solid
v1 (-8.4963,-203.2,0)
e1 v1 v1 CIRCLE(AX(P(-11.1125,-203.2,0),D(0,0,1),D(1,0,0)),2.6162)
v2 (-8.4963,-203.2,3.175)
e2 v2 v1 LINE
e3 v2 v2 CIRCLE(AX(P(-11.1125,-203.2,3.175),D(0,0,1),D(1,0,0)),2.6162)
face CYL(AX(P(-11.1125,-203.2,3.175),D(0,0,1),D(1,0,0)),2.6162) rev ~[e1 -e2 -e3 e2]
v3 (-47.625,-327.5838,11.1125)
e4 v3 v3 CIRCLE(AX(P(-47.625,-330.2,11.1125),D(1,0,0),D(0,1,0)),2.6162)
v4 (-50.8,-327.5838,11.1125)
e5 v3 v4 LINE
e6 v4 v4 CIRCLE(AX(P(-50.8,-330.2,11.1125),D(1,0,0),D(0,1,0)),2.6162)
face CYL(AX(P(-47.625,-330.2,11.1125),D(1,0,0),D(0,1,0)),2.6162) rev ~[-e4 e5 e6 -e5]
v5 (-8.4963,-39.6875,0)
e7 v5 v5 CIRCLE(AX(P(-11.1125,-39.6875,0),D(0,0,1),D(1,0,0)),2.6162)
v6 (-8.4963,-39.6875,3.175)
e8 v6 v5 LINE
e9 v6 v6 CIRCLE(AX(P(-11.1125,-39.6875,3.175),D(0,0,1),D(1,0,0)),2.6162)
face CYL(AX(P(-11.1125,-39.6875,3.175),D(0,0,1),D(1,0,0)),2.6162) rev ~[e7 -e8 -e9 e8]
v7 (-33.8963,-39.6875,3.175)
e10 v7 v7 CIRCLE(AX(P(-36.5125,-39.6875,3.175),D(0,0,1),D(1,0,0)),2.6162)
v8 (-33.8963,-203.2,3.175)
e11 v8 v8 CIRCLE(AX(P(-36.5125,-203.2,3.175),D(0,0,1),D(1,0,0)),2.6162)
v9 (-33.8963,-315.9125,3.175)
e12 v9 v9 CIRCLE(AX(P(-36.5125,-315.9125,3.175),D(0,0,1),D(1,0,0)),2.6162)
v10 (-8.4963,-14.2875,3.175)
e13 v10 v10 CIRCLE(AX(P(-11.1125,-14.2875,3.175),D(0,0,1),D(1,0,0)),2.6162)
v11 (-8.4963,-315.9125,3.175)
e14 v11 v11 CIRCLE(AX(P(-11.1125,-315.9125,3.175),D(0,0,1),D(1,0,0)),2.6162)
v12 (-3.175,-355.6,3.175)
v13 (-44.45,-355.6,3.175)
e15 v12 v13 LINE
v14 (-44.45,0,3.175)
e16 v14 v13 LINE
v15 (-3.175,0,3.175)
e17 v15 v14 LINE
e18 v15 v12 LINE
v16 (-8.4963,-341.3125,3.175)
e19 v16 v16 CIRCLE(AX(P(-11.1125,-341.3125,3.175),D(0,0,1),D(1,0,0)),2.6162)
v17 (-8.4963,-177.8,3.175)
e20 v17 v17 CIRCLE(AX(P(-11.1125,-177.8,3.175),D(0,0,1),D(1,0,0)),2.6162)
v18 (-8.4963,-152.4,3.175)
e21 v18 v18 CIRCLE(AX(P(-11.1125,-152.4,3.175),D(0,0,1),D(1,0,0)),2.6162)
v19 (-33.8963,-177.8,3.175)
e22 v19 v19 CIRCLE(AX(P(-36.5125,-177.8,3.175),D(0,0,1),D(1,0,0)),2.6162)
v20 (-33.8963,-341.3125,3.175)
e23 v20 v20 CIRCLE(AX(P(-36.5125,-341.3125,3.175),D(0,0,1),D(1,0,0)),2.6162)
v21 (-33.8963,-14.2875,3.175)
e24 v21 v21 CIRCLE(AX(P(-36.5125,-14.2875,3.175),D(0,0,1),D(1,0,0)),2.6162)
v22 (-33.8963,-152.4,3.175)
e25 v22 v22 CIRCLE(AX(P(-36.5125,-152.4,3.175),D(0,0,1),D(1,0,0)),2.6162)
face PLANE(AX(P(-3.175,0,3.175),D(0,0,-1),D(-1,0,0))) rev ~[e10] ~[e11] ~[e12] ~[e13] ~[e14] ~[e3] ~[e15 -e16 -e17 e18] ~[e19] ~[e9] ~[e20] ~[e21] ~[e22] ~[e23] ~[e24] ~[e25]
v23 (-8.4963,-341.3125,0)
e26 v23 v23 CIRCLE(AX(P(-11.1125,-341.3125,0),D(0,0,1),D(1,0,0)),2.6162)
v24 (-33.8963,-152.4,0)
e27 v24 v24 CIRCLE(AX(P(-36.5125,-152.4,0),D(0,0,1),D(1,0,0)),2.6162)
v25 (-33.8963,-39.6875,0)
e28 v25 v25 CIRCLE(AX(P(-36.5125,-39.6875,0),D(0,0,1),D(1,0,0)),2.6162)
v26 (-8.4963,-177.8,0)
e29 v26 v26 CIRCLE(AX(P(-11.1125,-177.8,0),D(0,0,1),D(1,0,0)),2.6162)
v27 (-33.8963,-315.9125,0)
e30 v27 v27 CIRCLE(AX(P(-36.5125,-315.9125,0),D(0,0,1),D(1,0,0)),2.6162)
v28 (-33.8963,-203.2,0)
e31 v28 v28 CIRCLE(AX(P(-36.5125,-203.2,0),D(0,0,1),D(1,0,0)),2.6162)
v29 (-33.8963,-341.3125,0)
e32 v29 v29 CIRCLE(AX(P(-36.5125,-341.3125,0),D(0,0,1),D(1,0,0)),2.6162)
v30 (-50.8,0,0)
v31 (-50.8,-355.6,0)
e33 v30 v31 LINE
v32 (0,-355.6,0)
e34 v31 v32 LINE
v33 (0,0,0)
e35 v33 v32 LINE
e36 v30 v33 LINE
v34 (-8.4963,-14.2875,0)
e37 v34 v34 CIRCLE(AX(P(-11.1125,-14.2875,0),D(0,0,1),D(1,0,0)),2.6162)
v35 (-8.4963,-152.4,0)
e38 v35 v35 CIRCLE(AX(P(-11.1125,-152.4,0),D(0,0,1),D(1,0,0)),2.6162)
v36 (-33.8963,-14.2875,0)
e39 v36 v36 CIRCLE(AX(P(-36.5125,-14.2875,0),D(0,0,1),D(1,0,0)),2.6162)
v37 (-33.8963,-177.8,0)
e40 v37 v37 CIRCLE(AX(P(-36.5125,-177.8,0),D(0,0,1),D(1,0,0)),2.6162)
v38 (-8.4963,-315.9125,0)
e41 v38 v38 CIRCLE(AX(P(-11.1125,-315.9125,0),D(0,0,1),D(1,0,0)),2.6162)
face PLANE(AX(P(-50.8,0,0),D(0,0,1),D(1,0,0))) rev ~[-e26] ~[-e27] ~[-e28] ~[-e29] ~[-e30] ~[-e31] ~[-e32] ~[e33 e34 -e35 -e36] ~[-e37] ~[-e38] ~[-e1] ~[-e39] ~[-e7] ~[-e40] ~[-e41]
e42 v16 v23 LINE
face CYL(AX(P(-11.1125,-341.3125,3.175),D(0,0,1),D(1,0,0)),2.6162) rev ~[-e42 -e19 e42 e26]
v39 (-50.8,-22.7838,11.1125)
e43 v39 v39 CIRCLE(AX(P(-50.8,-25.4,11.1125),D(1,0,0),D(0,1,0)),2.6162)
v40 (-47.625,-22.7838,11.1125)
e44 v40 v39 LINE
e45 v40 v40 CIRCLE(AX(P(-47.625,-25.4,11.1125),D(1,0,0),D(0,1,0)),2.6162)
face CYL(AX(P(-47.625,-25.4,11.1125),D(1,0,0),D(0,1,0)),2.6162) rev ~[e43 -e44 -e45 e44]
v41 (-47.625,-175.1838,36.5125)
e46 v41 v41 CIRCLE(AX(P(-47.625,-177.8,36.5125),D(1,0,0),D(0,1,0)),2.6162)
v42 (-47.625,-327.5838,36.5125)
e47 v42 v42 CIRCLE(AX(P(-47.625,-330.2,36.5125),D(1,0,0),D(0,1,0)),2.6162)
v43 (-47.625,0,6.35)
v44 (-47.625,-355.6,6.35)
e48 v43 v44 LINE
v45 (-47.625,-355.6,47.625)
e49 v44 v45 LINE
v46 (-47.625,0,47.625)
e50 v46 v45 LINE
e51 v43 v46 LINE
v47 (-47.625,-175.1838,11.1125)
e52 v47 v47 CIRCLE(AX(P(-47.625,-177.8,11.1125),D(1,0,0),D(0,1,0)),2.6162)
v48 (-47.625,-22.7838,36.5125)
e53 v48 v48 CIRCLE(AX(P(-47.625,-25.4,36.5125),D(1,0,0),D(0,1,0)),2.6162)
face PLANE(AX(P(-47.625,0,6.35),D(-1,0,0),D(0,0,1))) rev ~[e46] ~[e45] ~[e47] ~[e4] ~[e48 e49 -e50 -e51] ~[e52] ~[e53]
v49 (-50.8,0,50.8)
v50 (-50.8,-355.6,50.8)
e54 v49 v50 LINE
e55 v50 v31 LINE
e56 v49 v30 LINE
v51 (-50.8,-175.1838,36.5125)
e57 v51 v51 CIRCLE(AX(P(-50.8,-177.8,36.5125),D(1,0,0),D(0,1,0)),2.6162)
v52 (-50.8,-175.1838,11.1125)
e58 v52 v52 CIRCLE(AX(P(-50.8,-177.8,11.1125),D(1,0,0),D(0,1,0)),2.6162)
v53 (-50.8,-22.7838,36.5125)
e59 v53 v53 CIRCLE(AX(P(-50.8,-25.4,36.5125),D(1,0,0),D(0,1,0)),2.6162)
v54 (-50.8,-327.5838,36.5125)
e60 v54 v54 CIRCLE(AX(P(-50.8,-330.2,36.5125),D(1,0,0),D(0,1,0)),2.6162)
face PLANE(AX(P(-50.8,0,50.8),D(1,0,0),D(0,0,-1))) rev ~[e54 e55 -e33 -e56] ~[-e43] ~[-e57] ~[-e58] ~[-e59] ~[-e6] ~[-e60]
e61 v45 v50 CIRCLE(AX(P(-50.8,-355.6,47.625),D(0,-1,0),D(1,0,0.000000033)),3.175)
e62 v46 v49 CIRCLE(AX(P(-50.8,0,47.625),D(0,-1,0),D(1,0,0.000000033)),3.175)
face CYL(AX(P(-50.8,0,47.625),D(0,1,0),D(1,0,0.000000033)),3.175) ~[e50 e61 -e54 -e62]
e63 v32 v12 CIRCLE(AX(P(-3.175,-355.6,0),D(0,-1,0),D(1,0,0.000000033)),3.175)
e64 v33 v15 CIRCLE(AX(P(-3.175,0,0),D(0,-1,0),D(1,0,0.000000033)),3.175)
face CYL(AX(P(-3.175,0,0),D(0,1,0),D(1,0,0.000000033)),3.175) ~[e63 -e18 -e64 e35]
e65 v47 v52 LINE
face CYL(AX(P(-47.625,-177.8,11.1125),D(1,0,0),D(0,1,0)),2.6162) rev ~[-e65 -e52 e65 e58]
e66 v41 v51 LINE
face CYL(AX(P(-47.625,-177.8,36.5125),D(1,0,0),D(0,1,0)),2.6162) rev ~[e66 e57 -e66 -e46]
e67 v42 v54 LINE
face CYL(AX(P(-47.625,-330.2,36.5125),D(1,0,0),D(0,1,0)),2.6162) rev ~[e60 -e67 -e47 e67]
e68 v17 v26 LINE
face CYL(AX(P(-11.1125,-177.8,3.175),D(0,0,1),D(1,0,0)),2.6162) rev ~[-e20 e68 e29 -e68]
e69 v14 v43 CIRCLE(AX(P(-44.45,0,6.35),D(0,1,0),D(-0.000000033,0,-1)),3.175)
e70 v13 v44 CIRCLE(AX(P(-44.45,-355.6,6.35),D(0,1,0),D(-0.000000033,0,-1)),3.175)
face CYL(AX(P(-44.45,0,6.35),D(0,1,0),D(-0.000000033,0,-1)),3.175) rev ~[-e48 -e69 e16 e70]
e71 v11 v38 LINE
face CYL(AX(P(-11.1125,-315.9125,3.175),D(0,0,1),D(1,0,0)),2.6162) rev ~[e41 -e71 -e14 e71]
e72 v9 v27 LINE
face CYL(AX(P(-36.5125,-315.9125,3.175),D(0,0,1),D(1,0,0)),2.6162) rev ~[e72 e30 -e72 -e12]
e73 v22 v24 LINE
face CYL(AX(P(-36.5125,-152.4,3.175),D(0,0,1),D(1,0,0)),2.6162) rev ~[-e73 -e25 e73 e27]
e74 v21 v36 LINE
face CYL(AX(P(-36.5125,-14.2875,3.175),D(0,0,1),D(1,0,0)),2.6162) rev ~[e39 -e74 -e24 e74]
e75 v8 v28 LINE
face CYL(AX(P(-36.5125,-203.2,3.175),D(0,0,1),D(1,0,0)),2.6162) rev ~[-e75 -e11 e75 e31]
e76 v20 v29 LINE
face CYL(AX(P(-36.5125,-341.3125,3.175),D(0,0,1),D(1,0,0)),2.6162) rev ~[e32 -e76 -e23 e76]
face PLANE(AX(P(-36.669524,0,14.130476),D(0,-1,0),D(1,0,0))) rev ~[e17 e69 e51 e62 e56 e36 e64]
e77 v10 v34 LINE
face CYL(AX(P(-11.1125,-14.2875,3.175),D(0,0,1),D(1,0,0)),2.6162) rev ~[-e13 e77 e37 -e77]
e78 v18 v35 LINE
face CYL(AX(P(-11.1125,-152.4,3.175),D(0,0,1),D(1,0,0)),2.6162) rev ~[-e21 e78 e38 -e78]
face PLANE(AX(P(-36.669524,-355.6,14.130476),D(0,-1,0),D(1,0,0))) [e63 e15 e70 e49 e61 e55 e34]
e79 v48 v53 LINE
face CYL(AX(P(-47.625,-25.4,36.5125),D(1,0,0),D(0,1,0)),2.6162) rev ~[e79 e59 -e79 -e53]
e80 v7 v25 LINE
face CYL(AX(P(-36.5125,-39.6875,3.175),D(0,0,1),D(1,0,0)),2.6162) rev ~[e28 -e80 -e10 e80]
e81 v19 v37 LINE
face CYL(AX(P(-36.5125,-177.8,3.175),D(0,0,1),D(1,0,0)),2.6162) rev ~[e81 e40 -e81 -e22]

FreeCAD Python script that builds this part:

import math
import FreeCAD as App
import Part
import Sketcher
from FreeCAD import Vector
Q = App.Units.Quantity

doc = App.newDocument("Part")
body = doc.addObject("PartDesign::Body", "Body")

# Sketch on XZ plane
sketch1 = doc.addObject("Sketcher::SketchObject", "Sketch")
body.addObject(sketch1)
sketch1.AttachmentSupport = (doc.XZ_Plane, [""])
sketch1.MapMode = "FlatFace"
sketch1.addGeometry([
    Part.LineSegment(Vector(-50.8, 0, 0), Vector(0, 0, 0)),  # 0
    Part.ArcOfCircle(Part.Circle(Vector(-3.175, 0, 0), Vector(0, 0, 1), 3.175), math.radians(0.000002), math.radians(89.999998)),  # 1
    Part.LineSegment(Vector(-3.175, 3.175, 0), Vector(-44.45, 3.175, 0)),  # 2
    Part.ArcOfCircle(Part.Circle(Vector(-44.45, 6.35, 0), Vector(0, 0, 1), 3.175), math.radians(-179.999998), math.radians(-90.000002)),  # 3
    Part.LineSegment(Vector(-47.625, 6.35, 0), Vector(-47.625, 47.625, 0)),  # 4
    Part.ArcOfCircle(Part.Circle(Vector(-50.8, 47.625, 0), Vector(0, 0, 1), 3.175), math.radians(0.000002), math.radians(89.999998)),  # 5
    Part.LineSegment(Vector(-50.8, 50.8, 0), Vector(-50.8, 0, 0)),  # 6
], False)
sketch1.addConstraint([
    Sketcher.Constraint("Coincident", 0, 2, 1, 1),
    Sketcher.Constraint("Tangent", 1, 2, 2, 1),
    Sketcher.Constraint("Tangent", 2, 2, 3, 2),
    Sketcher.Constraint("Tangent", 3, 1, 4, 1),
    Sketcher.Constraint("Tangent", 4, 2, 5, 1),
    Sketcher.Constraint("Coincident", 5, 2, 6, 1),
    Sketcher.Constraint("Coincident", 6, 2, 0, 1),
    Sketcher.Constraint("Horizontal", 0),
    Sketcher.Constraint("Horizontal", 2),
    Sketcher.Constraint("Vertical", 4),
    Sketcher.Constraint("Vertical", 6),
    Sketcher.Constraint("Coincident", 0, 2, -1, 1),
    Sketcher.Constraint("Equal", 1, 3),
    Sketcher.Constraint("Equal", 3, 5),
    Sketcher.Constraint("PointOnObject", 1, 3, -1),
    Sketcher.Constraint("Equal", 2, 4),
    Sketcher.Constraint("Equal", 0, 6),
    Sketcher.Constraint("DistanceX", 0, 1, 0, 2, Q("2 in")),
    Sketcher.Constraint("Radius", 1, Q("0.125 in")),
])
pad1 = doc.addObject("PartDesign::Pad", "Pad")
body.addObject(pad1)
pad1.Profile = sketch1
pad1.Length = Q("14 in")

# Sketch on YZ plane
sketch2 = doc.addObject("Sketcher::SketchObject", "Sketch001")
body.addObject(sketch2)
sketch2.AttachmentSupport = (doc.YZ_Plane, [""])
sketch2.MapMode = "FlatFace"
sketch2.AttachmentOffset = App.Placement(Vector(0, 0, -1.875 * 25.4), App.Rotation())
sketch2.addGeometry([
    Part.Circle(Vector(-330.2, 11.1125, 0), Vector(0, 0, 1), 2.6162),  # 0
    Part.Circle(Vector(-177.8, 11.1125, 0), Vector(0, 0, 1), 2.6162),  # 1
    Part.Circle(Vector(-25.4, 11.1125, 0), Vector(0, 0, 1), 2.6162),  # 2
    Part.Circle(Vector(-330.2, 36.5125, 0), Vector(0, 0, 1), 2.6162),  # 3
    Part.Circle(Vector(-177.8, 36.5125, 0), Vector(0, 0, 1), 2.6162),  # 4
    Part.Circle(Vector(-25.4, 36.5125, 0), Vector(0, 0, 1), 2.6162),  # 5
], False)
sketch2.addConstraint([
    Sketcher.Constraint("Equal", 0, 1),
    Sketcher.Constraint("Equal", 1, 2),
    Sketcher.Constraint("Equal", 2, 3),
    Sketcher.Constraint("Equal", 3, 4),
    Sketcher.Constraint("Equal", 4, 5),
    Sketcher.Constraint("Horizontal", 0, 3, 1, 3),
    Sketcher.Constraint("Horizontal", 1, 3, 2, 3),
    Sketcher.Constraint("Horizontal", 3, 3, 4, 3),
    Sketcher.Constraint("Horizontal", 4, 3, 5, 3),
    Sketcher.Constraint("Vertical", 0, 3, 3, 3),
    Sketcher.Constraint("Vertical", 1, 3, 4, 3),
    Sketcher.Constraint("Vertical", 2, 3, 5, 3),
    Sketcher.Constraint("Diameter", 0, Q("0.206 in")),
    Sketcher.Constraint("DistanceX", 0, 3, -1, 1, Q("13 in")),
    Sketcher.Constraint("DistanceX", 1, 3, -1, 1, Q("7 in")),
    Sketcher.Constraint("DistanceX", 2, 3, -1, 1, Q("1 in")),
    Sketcher.Constraint("DistanceY", 0, 3, 3, 3, Q("1 in")),
    Sketcher.Constraint("DistanceY", -1, 1, 0, 3, Q("0.4375 in")),
])
pocket1 = doc.addObject("PartDesign::Pocket", "Pocket")
body.addObject(pocket1)
pocket1.Profile = sketch2
pocket1.Type = "ThroughAll"

# Sketch on XY plane
sketch3 = doc.addObject("Sketcher::SketchObject", "Sketch002")
body.addObject(sketch3)
sketch3.AttachmentSupport = (doc.XY_Plane, [""])
sketch3.MapMode = "FlatFace"
sketch3.AttachmentOffset = App.Placement(Vector(0, 0, 0.125 * 25.4), App.Rotation())
sketch3.addGeometry([
    Part.Circle(Vector(-36.5125, -341.3125, 0), Vector(0, 0, 1), 2.6162),  # 0
    Part.Circle(Vector(-36.5125, -14.2875, 0), Vector(0, 0, 1), 2.6162),  # 1
    Part.Circle(Vector(-36.5125, -177.8, 0), Vector(0, 0, 1), 2.6162),  # 2
    Part.Circle(Vector(-11.1125, -341.3125, 0), Vector(0, 0, 1), 2.6162),  # 3
    Part.Circle(Vector(-11.1125, -177.8, 0), Vector(0, 0, 1), 2.6162),  # 4
    Part.Circle(Vector(-11.1125, -14.2875, 0), Vector(0, 0, 1), 2.6162),  # 5
    Part.Circle(Vector(-36.5125, -203.2, 0), Vector(0, 0, 1), 2.6162),  # 6
    Part.Circle(Vector(-11.1125, -203.2, 0), Vector(0, 0, 1), 2.6162),  # 7
    Part.Circle(Vector(-36.5125, -152.4, 0), Vector(0, 0, 1), 2.6162),  # 8
    Part.Circle(Vector(-11.1125, -152.4, 0), Vector(0, 0, 1), 2.6162),  # 9
    Part.Circle(Vector(-11.1125, -39.6875, 0), Vector(0, 0, 1), 2.6162),  # 10
    Part.Circle(Vector(-36.5125, -39.6875, 0), Vector(0, 0, 1), 2.6162),  # 11
    Part.Circle(Vector(-11.1125, -315.9125, 0), Vector(0, 0, 1), 2.6162),  # 12
    Part.Circle(Vector(-36.5125, -315.9125, 0), Vector(0, 0, 1), 2.6162),  # 13
], False)
sketch3.addConstraint([
    Sketcher.Constraint("Equal", 0, 1),
    Sketcher.Constraint("Equal", 1, 2),
    Sketcher.Constraint("Equal", 2, 3),
    Sketcher.Constraint("Equal", 3, 4),
    Sketcher.Constraint("Equal", 4, 5),
    Sketcher.Constraint("Equal", 5, 6),
    Sketcher.Constraint("Equal", 6, 7),
    Sketcher.Constraint("Equal", 7, 8),
    Sketcher.Constraint("Equal", 8, 9),
    Sketcher.Constraint("Equal", 9, 10),
    Sketcher.Constraint("Equal", 10, 11),
    Sketcher.Constraint("Equal", 11, 12),
    Sketcher.Constraint("Equal", 12, 13),
    Sketcher.Constraint("Horizontal", 0, 3, 3, 3),
    Sketcher.Constraint("Horizontal", 2, 3, 4, 3),
    Sketcher.Constraint("Horizontal", 1, 3, 5, 3),
    Sketcher.Constraint("Horizontal", 6, 3, 7, 3),
    Sketcher.Constraint("Horizontal", 8, 3, 9, 3),
    Sketcher.Constraint("Horizontal", 10, 3, 11, 3),
    Sketcher.Constraint("Horizontal", 12, 3, 13, 3),
    Sketcher.Constraint("Vertical", 0, 3, 1, 3),
    Sketcher.Constraint("Vertical", 1, 3, 2, 3),
    Sketcher.Constraint("Vertical", 3, 3, 4, 3),
    Sketcher.Constraint("Vertical", 4, 3, 5, 3),
    Sketcher.Constraint("Vertical", 2, 3, 6, 3),
    Sketcher.Constraint("Vertical", 5, 3, 7, 3),
    Sketcher.Constraint("Vertical", 6, 3, 8, 3),
    Sketcher.Constraint("Vertical", 7, 3, 9, 3),
    Sketcher.Constraint("Vertical", 9, 3, 10, 3),
    Sketcher.Constraint("Vertical", 8, 3, 11, 3),
    Sketcher.Constraint("Vertical", 10, 3, 12, 3),
    Sketcher.Constraint("Vertical", 11, 3, 13, 3),
    Sketcher.Constraint("Diameter", 0, Q("0.206 in")),
    Sketcher.Constraint("DistanceY", 2, 3, -1, 1, Q("7 in")),
    Sketcher.Constraint("DistanceY", 6, 3, -1, 1, Q("8 in")),
    Sketcher.Constraint("DistanceY", 8, 3, -1, 1, Q("6 in")),
    Sketcher.Constraint("DistanceX", 0, 3, 3, 3, Q("1 in")),
    Sketcher.Constraint("DistanceY", 10, 3, 5, 3, Q("1 in")),
    Sketcher.Constraint("DistanceY", 3, 3, 12, 3, Q("1 in")),
    Sketcher.Constraint("DistanceX", 0, 3, -1, 1, Q("1.4375 in")),
    Sketcher.Constraint("DistanceY", 0, 3, -1, 1, Q("13.4375 in")),
    Sketcher.Constraint("DistanceY", 1, 3, -1, 1, Q("0.5625 in")),
])
pocket2 = doc.addObject("PartDesign::Pocket", "Pocket001")
body.addObject(pocket2)
pocket2.Profile = sketch3
pocket2.Type = "ThroughAll"

doc.recompute()
